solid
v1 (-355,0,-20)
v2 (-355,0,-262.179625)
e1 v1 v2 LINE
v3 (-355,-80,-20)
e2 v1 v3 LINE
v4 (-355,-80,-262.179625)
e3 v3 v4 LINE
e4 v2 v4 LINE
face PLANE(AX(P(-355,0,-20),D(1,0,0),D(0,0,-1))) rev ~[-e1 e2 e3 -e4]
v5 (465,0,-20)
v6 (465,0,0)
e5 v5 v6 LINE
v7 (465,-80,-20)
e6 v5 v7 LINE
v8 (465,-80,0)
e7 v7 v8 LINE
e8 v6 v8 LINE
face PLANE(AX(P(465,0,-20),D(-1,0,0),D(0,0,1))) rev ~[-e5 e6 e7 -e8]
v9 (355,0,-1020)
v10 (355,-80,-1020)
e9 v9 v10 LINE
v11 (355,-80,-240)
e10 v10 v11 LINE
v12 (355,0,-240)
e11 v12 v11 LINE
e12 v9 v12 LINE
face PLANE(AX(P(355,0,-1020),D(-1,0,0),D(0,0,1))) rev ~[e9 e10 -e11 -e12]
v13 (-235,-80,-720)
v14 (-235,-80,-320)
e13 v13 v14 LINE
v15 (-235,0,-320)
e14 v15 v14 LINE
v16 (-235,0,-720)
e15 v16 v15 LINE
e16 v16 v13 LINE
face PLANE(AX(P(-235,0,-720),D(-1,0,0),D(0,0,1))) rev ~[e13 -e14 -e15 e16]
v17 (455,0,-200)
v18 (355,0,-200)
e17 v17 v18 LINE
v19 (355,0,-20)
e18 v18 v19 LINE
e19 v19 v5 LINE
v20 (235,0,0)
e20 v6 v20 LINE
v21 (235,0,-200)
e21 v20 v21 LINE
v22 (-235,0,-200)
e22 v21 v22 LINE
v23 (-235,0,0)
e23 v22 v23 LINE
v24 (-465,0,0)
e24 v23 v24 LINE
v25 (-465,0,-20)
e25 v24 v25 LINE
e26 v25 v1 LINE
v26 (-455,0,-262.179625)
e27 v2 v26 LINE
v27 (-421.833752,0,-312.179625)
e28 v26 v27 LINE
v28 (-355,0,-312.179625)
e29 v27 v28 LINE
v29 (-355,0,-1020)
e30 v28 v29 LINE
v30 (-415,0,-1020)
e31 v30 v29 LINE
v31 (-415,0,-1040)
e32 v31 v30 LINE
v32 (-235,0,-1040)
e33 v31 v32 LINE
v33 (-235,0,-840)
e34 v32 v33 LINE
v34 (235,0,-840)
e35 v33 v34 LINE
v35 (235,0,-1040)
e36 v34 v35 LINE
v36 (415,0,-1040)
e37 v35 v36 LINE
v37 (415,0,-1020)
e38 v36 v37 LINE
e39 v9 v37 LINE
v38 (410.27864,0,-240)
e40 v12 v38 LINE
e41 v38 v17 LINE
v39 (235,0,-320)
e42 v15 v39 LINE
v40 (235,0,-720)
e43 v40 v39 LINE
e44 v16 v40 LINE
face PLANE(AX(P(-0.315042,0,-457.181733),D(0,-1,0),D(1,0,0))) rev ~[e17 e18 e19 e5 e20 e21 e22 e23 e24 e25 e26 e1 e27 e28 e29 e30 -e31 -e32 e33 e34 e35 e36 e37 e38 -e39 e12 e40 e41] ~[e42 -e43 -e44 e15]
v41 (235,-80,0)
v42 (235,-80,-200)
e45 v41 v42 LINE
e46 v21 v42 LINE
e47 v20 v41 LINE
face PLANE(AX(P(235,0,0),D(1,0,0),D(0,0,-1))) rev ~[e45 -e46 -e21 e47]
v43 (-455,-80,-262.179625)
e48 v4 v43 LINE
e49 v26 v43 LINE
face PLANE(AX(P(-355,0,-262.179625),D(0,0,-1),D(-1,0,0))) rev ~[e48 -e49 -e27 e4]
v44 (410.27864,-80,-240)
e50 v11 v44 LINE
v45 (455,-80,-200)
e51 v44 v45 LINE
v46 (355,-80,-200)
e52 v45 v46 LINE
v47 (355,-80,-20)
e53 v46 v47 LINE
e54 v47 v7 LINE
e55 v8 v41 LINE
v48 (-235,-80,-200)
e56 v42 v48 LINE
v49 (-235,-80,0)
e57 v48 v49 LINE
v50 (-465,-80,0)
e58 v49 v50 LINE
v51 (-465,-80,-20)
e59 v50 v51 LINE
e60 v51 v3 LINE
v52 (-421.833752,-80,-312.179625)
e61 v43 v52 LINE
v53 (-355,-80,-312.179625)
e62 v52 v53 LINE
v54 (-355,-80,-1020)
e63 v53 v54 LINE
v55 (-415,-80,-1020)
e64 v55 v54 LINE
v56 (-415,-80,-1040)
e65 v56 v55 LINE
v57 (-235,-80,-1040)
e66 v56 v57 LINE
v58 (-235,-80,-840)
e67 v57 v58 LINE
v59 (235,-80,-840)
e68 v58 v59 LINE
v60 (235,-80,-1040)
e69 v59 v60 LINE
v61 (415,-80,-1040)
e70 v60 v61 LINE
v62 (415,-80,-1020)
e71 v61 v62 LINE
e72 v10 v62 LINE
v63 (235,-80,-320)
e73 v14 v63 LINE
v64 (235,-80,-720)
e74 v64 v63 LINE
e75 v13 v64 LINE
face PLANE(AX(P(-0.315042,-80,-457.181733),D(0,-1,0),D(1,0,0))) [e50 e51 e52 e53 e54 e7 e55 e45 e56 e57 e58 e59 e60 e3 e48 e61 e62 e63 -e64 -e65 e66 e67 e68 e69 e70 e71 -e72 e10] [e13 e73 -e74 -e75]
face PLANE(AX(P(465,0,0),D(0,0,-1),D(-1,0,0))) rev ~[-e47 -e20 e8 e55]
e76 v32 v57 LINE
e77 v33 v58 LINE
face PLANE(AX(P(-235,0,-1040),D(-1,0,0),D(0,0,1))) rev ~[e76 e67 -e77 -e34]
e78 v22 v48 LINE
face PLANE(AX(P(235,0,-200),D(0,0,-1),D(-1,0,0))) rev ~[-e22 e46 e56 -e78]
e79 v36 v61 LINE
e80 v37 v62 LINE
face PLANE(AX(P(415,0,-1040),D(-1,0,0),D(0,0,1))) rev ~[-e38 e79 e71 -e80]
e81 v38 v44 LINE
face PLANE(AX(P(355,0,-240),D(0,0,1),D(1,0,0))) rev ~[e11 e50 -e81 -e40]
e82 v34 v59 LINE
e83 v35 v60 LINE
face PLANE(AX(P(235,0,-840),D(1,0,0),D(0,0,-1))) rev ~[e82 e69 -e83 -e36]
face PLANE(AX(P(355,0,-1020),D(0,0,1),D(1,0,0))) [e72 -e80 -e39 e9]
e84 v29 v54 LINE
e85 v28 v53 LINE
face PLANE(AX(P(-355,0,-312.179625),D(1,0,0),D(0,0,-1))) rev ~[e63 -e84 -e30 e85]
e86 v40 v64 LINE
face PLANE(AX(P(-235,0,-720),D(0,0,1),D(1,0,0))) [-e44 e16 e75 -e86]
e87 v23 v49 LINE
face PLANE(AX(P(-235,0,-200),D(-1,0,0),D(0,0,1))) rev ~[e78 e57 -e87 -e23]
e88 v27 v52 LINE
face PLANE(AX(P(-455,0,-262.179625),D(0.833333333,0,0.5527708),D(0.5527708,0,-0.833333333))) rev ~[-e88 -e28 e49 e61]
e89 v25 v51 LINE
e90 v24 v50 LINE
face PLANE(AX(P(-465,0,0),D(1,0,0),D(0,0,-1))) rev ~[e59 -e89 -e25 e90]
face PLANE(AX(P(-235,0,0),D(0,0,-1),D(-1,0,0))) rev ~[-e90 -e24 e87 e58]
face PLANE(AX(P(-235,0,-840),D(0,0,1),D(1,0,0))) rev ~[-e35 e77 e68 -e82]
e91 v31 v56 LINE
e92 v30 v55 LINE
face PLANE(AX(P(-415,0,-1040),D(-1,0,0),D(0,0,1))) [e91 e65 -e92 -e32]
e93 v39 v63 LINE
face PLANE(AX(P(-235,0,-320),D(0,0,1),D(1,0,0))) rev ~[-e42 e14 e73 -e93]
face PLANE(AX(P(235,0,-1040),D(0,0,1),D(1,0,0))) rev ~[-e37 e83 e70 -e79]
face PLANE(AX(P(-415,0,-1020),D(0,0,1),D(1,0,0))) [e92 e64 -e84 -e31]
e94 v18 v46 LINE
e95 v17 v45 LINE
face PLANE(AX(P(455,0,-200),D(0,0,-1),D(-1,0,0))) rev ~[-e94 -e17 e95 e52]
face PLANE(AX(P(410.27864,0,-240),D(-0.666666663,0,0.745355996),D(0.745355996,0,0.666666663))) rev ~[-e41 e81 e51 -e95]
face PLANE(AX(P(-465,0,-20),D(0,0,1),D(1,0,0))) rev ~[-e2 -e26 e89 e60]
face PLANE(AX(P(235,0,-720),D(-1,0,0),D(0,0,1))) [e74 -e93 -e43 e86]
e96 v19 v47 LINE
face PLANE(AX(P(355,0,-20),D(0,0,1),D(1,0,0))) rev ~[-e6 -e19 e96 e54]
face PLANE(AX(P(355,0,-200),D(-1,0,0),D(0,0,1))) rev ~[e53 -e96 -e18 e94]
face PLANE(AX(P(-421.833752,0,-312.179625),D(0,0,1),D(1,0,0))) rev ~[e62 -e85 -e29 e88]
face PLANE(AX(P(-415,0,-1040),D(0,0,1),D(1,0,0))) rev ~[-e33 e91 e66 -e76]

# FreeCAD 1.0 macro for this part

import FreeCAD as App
import Part
import Sketcher

V = App.Vector
Q = App.Units.Quantity


def add_polygon(sketch, points):
    """Adds a closed chain of lines whose ends are joined by coincident constraints."""
    first, n = sketch.GeometryCount, len(points)
    for a, b in zip(points, points[1:] + points[:1]):
        sketch.addGeometry(Part.LineSegment(App.Vector(*a, 0), App.Vector(*b, 0)), False)
    for i in range(n):
        sketch.addConstraint(Sketcher.Constraint("Coincident", first + i, 2, first + (i + 1) % n, 1))

doc = App.newDocument("Part")
body = doc.addObject("PartDesign::Body", "Body")

# Sketch on XZ plane
sketch1 = doc.addObject("Sketcher::SketchObject", "Sketch")
body.addObject(sketch1)
sketch1.AttachmentSupport = (doc.XZ_Plane, [""])
sketch1.MapMode = "FlatFace"
add_polygon(sketch1, [(-235, 0), (-465, 0), (-465, -20), (-355, -20), (-355, -262.179625), (-455, -262.179625), (-421.833752, -312.179625), (-355, -312.179625), (-355, -1020), (-415, -1020), (-415, -1040), (-235, -1040), (-235, -840), (235, -840), (235, -1040), (415, -1040), (415, -1020), (355, -1020), (355, -240), (410.27864, -240), (455, -200), (355, -200), (355, -20), (465, -20), (465, 0), (235, 0), (235, -200), (-235, -200)])  # lines 0-27
add_polygon(sketch1, [(235, -720), (-235, -720), (-235, -320), (235, -320)])  # lines 28-31
sketch1.addConstraint(Sketcher.Constraint("Horizontal", 0))
sketch1.addConstraint(Sketcher.Constraint("Vertical", 1))
sketch1.addConstraint(Sketcher.Constraint("Horizontal", 2))
sketch1.addConstraint(Sketcher.Constraint("Vertical", 3))
sketch1.addConstraint(Sketcher.Constraint("Horizontal", 4))
sketch1.addConstraint(Sketcher.Constraint("Horizontal", 6))
sketch1.addConstraint(Sketcher.Constraint("Vertical", 7))
sketch1.addConstraint(Sketcher.Constraint("Horizontal", 8))
sketch1.addConstraint(Sketcher.Constraint("Vertical", 9))
sketch1.addConstraint(Sketcher.Constraint("Horizontal", 10))
sketch1.addConstraint(Sketcher.Constraint("Vertical", 11))
sketch1.addConstraint(Sketcher.Constraint("Horizontal", 12))
sketch1.addConstraint(Sketcher.Constraint("Vertical", 13))
sketch1.addConstraint(Sketcher.Constraint("Horizontal", 14))
sketch1.addConstraint(Sketcher.Constraint("Vertical", 15))
sketch1.addConstraint(Sketcher.Constraint("Horizontal", 16))
sketch1.addConstraint(Sketcher.Constraint("Vertical", 17))
sketch1.addConstraint(Sketcher.Constraint("Horizontal", 18))
sketch1.addConstraint(Sketcher.Constraint("Horizontal", 20))
sketch1.addConstraint(Sketcher.Constraint("Vertical", 21))
sketch1.addConstraint(Sketcher.Constraint("Horizontal", 22))
sketch1.addConstraint(Sketcher.Constraint("Vertical", 23))
sketch1.addConstraint(Sketcher.Constraint("Horizontal", 24))
sketch1.addConstraint(Sketcher.Constraint("Vertical", 25))
sketch1.addConstraint(Sketcher.Constraint("Horizontal", 26))
sketch1.addConstraint(Sketcher.Constraint("Vertical", 27))
sketch1.addConstraint(Sketcher.Constraint("Horizontal", 28))
sketch1.addConstraint(Sketcher.Constraint("Vertical", 29))
sketch1.addConstraint(Sketcher.Constraint("Horizontal", 30))
sketch1.addConstraint(Sketcher.Constraint("Vertical", 31))
sketch1.addConstraint(Sketcher.Constraint("Symmetric", 0, 2, 23, 2, -1, 1))
sketch1.addConstraint(Sketcher.Constraint("Symmetric", 10, 2, 13, 2, -2))
sketch1.addConstraint(Sketcher.Constraint("Symmetric", 8, 2, 15, 2, -2))
sketch1.addConstraint(Sketcher.Constraint("Symmetric", 2, 2, 21, 2, -2))
sketch1.addConstraint(Sketcher.Constraint("Symmetric", 24, 2, 27, 2, -2))
sketch1.addConstraint(Sketcher.Constraint("Horizontal", 20, 2, 25, 2))
sketch1.addConstraint(Sketcher.Constraint("Vertical", 3, 2, 6, 2))
sketch1.addConstraint(Sketcher.Constraint("Vertical", 17, 2, 20, 2))
sketch1.addConstraint(Sketcher.Constraint("Vertical", 13, 2, 24, 2))
sketch1.addConstraint(Sketcher.Constraint("Vertical", 27, 2, 28, 2))
sketch1.addConstraint(Sketcher.Constraint("Vertical", 25, 2, 30, 2))
sketch1.addConstraint(Sketcher.Constraint("Equal", 4, 20))
sketch1.addConstraint(Sketcher.Constraint("Equal", 1, 9))
sketch1.addConstraint(Sketcher.Constraint("Equal", 14, 21))
sketch1.addConstraint(Sketcher.Constraint("Equal", 13, 25))
sketch1.addConstraint(Sketcher.Constraint("Equal", 5, 19))
sketch1.addConstraint(Sketcher.Constraint("DistanceX", 0, 2, 0, 1, Q("230 mm")))
sketch1.addConstraint(Sketcher.Constraint("DistanceX", 2, 1, 2, 2, Q("110 mm")))
sketch1.addConstraint(Sketcher.Constraint("DistanceX", 4, 2, 4, 1, Q("100 mm")))
sketch1.addConstraint(Sketcher.Constraint("DistanceX", 8, 2, 8, 1, Q("60 mm")))
sketch1.addConstraint(Sketcher.Constraint("DistanceX", 12, 1, 12, 2, Q("470 mm")))
sketch1.addConstraint(Sketcher.Constraint("DistanceY", 1, 2, 1, 1, Q("20 mm")))
sketch1.addConstraint(Sketcher.Constraint("DistanceY", 17, 1, 17, 2, Q("780 mm")))
sketch1.addConstraint(Sketcher.Constraint("DistanceY", 29, 1, 29, 2, Q("400 mm")))
sketch1.addConstraint(Sketcher.Constraint("Distance", 5, Q("60 mm")))
sketch1.addConstraint(Sketcher.Constraint("DistanceY", 7, 2, -1, 1, Q("1020 mm")))
sketch1.addConstraint(Sketcher.Constraint("DistanceY", 28, 2, -1, 1, Q("720 mm")))
sketch1.addConstraint(Sketcher.Constraint("DistanceY", 5, 2, 4, 2, Q("50 mm")))
sketch1.addConstraint(Sketcher.Constraint("DistanceY", 3, 2, 3, 1, Q("242.179625 mm")))
pad1 = doc.addObject("PartDesign::Pad", "Pad")
body.addObject(pad1)
pad1.Profile = sketch1
pad1.Length = 80

doc.recompute()
